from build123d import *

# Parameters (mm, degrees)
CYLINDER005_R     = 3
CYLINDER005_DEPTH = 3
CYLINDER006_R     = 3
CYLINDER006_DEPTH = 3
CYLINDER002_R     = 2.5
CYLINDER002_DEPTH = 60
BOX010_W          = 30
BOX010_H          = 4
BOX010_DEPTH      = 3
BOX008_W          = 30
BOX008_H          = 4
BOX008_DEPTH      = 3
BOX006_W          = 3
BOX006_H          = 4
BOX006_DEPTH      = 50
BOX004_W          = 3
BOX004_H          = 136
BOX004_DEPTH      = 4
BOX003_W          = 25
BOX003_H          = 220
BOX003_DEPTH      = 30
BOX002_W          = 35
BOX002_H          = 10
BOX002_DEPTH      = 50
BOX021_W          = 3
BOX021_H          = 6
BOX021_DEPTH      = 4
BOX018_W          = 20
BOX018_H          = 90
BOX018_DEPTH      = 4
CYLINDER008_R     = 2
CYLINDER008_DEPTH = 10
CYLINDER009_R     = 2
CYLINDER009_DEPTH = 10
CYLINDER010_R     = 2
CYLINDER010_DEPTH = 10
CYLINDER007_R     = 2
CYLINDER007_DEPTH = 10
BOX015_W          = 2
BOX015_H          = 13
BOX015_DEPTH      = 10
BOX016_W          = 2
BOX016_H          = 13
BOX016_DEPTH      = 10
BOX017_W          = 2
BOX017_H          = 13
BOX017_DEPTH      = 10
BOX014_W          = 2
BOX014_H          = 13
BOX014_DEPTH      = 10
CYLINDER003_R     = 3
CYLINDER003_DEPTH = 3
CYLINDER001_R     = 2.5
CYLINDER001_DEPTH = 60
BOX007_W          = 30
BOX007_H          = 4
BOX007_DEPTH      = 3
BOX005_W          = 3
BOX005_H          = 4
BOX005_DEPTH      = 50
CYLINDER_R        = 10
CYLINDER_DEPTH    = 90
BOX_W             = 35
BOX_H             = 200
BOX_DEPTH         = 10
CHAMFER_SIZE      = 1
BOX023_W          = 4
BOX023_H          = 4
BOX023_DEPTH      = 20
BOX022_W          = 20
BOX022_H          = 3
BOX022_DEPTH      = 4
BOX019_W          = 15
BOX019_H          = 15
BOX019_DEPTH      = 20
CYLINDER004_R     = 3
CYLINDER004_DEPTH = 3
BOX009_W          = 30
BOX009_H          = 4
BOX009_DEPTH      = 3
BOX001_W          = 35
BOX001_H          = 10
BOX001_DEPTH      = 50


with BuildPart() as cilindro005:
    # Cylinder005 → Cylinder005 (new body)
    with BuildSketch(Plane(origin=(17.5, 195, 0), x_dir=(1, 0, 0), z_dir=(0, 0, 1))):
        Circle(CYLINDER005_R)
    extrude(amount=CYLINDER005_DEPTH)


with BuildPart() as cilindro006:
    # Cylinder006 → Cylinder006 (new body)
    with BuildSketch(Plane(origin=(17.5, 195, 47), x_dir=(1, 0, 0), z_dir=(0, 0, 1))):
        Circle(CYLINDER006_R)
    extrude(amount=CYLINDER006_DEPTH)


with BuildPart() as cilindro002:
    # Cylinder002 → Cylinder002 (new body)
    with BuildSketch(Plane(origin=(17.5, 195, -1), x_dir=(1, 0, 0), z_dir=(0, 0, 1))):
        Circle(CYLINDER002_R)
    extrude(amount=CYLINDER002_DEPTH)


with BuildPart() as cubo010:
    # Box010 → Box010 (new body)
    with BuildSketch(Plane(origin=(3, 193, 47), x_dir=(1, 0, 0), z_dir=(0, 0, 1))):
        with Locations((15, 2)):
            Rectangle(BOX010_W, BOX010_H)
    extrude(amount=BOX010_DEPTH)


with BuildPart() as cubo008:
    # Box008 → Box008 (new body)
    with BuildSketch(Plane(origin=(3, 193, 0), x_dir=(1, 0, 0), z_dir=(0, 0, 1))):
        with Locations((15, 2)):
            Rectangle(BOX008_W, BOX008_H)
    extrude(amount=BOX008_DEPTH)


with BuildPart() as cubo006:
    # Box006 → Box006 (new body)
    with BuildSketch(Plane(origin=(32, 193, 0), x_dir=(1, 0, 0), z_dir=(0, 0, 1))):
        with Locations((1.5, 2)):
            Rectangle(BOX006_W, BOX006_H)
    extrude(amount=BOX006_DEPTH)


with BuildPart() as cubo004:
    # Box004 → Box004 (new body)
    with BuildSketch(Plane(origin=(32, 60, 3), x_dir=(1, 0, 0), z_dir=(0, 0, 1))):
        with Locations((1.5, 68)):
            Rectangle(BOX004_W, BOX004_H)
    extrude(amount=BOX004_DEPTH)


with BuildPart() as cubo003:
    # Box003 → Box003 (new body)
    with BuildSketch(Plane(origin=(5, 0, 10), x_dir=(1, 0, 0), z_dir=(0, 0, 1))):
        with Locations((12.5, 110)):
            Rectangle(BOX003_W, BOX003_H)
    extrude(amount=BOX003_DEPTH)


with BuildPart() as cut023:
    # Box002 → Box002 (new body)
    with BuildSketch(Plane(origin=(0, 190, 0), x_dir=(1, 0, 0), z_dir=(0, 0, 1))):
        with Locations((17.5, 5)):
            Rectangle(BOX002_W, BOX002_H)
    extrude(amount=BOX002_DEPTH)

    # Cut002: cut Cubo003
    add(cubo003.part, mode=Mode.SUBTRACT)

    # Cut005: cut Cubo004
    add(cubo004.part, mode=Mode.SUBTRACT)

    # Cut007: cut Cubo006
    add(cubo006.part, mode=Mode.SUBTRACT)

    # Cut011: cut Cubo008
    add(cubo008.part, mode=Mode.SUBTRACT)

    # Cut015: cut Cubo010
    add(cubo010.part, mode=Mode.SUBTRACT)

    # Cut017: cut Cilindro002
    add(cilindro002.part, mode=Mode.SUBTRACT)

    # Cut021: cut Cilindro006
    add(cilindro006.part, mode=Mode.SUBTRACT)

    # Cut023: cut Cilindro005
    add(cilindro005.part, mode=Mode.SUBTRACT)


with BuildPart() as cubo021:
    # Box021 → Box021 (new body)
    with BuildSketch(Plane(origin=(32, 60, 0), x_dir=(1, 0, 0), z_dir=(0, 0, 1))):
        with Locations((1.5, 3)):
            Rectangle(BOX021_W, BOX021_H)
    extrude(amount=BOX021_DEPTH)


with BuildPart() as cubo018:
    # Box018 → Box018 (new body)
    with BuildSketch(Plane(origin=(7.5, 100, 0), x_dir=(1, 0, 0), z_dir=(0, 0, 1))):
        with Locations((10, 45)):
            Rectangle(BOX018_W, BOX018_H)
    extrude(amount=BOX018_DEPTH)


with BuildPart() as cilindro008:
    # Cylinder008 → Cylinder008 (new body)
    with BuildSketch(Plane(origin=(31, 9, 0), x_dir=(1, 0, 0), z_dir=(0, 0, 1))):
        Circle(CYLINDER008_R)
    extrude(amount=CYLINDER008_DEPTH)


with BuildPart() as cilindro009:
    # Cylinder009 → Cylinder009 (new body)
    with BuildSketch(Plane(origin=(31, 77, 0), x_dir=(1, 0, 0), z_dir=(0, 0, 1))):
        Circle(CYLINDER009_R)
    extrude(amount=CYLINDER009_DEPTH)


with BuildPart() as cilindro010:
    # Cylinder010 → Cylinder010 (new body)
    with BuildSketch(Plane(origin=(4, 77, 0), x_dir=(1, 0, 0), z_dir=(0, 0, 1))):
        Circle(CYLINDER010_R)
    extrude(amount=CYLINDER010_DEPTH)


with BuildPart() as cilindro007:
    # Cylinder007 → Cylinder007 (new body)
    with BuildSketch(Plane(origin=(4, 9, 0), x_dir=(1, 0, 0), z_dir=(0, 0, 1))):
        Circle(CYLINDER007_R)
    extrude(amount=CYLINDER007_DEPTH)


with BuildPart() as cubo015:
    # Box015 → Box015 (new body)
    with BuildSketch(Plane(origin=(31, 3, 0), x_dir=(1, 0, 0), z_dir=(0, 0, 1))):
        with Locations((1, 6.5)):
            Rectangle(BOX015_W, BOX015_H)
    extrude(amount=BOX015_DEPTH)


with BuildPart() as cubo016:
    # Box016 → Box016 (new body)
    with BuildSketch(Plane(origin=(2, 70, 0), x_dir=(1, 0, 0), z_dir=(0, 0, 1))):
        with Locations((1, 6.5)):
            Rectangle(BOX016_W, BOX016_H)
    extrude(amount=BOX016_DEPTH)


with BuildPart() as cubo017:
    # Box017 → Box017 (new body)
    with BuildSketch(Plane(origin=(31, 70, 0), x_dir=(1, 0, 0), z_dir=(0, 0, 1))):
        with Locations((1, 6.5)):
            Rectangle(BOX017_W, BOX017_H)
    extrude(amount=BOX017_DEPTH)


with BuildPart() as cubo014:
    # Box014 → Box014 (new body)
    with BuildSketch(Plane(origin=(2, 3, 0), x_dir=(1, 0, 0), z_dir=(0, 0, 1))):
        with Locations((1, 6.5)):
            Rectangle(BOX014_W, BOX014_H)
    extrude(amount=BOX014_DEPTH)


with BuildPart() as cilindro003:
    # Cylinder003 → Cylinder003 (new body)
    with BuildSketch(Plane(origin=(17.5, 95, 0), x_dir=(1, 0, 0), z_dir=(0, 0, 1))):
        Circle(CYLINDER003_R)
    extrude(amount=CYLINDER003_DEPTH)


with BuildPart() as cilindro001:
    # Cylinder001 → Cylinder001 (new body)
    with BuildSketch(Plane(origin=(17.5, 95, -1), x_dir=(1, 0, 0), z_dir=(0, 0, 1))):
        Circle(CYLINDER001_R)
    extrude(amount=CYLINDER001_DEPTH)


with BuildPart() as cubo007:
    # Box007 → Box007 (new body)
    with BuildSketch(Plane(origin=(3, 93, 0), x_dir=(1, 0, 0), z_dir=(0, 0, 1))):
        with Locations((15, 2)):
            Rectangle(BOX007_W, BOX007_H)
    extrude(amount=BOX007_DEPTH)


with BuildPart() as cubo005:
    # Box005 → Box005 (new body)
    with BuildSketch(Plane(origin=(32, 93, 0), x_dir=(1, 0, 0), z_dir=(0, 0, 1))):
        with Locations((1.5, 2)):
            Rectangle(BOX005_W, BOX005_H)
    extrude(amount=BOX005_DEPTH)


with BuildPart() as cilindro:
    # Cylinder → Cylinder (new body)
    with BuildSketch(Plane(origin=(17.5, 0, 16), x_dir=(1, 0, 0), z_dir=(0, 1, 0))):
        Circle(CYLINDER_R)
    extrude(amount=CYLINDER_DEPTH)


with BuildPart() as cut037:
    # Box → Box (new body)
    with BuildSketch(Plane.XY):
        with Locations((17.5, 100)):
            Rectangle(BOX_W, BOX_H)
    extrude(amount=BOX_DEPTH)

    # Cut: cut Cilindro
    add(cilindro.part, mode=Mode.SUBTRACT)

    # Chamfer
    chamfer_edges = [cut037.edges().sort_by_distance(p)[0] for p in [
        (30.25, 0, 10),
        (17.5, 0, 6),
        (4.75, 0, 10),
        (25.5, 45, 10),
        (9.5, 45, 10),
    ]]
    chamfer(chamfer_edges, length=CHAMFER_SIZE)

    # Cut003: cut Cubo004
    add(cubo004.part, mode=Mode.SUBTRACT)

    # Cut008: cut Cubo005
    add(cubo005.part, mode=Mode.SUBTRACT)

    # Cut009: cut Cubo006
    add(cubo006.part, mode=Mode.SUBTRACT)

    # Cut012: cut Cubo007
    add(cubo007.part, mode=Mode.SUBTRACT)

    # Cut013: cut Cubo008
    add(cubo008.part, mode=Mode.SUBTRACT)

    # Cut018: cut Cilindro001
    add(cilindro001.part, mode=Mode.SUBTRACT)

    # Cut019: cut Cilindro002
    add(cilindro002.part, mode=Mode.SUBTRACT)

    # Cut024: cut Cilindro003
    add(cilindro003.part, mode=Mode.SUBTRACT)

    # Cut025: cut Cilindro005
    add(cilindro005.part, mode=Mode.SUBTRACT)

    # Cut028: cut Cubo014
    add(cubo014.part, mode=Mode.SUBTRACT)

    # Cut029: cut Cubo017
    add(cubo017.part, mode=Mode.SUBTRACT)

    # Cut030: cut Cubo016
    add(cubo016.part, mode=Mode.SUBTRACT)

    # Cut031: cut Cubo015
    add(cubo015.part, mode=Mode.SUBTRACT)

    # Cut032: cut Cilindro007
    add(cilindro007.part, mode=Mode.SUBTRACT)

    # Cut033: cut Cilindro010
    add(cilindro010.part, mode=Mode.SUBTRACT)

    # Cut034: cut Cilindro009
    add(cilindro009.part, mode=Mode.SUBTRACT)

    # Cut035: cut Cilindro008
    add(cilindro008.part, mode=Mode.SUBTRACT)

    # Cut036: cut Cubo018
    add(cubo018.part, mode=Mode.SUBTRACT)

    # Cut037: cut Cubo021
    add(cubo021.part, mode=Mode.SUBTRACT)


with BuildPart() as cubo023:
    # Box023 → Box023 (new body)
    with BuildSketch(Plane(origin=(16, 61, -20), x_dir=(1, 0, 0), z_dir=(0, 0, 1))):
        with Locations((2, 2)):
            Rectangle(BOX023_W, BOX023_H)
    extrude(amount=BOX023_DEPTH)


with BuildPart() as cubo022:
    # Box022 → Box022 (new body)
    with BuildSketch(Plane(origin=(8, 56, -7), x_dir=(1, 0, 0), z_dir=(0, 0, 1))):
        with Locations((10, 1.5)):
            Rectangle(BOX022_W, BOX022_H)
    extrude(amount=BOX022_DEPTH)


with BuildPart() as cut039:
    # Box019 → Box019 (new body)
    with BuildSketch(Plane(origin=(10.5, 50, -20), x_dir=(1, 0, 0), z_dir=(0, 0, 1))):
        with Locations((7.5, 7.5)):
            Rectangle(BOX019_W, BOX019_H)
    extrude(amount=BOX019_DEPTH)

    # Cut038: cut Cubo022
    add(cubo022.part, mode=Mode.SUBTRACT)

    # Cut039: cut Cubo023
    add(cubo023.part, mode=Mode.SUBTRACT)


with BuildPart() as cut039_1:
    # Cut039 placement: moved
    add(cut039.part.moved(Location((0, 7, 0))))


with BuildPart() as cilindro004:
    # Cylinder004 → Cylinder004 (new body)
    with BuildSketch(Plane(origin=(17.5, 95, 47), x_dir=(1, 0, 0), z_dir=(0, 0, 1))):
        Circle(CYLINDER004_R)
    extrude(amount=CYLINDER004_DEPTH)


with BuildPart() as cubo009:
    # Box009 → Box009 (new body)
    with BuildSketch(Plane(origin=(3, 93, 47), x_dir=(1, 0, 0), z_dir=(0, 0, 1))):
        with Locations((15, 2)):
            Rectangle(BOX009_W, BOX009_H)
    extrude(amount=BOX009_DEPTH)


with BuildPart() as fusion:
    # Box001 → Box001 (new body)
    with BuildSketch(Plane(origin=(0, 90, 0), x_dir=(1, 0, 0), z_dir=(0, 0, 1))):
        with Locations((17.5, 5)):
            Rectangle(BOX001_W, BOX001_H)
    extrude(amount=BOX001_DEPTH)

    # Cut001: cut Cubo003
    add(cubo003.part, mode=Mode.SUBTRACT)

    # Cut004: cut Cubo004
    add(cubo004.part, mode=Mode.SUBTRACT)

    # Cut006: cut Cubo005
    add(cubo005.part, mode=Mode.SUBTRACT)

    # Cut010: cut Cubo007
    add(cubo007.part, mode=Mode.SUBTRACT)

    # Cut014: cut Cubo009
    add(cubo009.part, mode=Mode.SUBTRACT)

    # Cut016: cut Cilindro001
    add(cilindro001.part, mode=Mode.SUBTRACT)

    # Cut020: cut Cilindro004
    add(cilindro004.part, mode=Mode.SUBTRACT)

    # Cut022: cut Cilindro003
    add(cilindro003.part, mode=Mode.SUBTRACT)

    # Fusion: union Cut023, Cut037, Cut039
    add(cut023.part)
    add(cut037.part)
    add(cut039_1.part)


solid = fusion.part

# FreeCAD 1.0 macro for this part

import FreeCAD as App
import Part
import Sketcher


def edges_at(feature, points):
    """Names of the edges that pass closest to the given points."""
    edges = feature.Shape.Edges
    near = lambda p: min(range(len(edges)), key=lambda i: edges[i].distToShape(Part.Vertex(*p))[0])
    return sorted({f"Edge{near(p) + 1}" for p in points})

doc = App.newDocument("Part")
body = doc.addObject("PartDesign::Body", "Body")

sketch1 = body.newObject("Sketcher::SketchObject", "Sketch")
sketch1.AttachmentSupport = (doc.getObject("XY_Plane"), [""])
sketch1.MapMode = "FlatFace"
sketch1.addGeometry(Part.Circle(App.Vector(17.5, 195, 0), App.Vector(0, 0, 1), 3), False)
sketch1.addConstraint(Sketcher.Constraint("Diameter", 0, 6.0))
sketch1.addConstraint(Sketcher.Constraint("DistanceY", -1, 1, 0, 3, 195.0))
sketch1.addConstraint(Sketcher.Constraint("DistanceX", -1, 1, 0, 3, 17.5))
pad1 = body.newObject("PartDesign::Pad", "Pad")
pad1.Profile = sketch1
pad1.Length = 3
body2 = doc.addObject("PartDesign::Body", "Body001")

sketch2 = body2.newObject("Sketcher::SketchObject", "Sketch001")
sketch2.AttachmentSupport = (doc.getObject("XY_Plane001"), [""])
sketch2.MapMode = "FlatFace"
sketch2.AttachmentOffset = App.Placement(App.Vector(0, 0, 47), App.Rotation())
sketch2.addGeometry(Part.Circle(App.Vector(17.5, 195, 0), App.Vector(0, 0, 1), 3), False)
sketch2.addConstraint(Sketcher.Constraint("Diameter", 0, 6.0))
sketch2.addConstraint(Sketcher.Constraint("DistanceY", -1, 1, 0, 3, 195.0))
sketch2.addConstraint(Sketcher.Constraint("DistanceX", -1, 1, 0, 3, 17.5))
pad2 = body2.newObject("PartDesign::Pad", "Pad001")
pad2.Profile = sketch2
pad2.Length = 3
body3 = doc.addObject("PartDesign::Body", "Body002")

sketch3 = body3.newObject("Sketcher::SketchObject", "Sketch002")
sketch3.AttachmentSupport = (doc.getObject("XY_Plane002"), [""])
sketch3.MapMode = "FlatFace"
sketch3.AttachmentOffset = App.Placement(App.Vector(0, 0, -1), App.Rotation())
sketch3.addGeometry(Part.Circle(App.Vector(17.5, 195, 0), App.Vector(0, 0, 1), 2.5), False)
sketch3.addConstraint(Sketcher.Constraint("Diameter", 0, 5.0))
sketch3.addConstraint(Sketcher.Constraint("DistanceY", -1, 1, 0, 3, 195.0))
sketch3.addConstraint(Sketcher.Constraint("DistanceX", -1, 1, 0, 3, 17.5))
pad3 = body3.newObject("PartDesign::Pad", "Pad002")
pad3.Profile = sketch3
pad3.Length = 60
body4 = doc.addObject("PartDesign::Body", "Body003")

sketch4 = body4.newObject("Sketcher::SketchObject", "Sketch003")
sketch4.AttachmentSupport = (doc.getObject("XY_Plane003"), [""])
sketch4.MapMode = "FlatFace"
sketch4.AttachmentOffset = App.Placement(App.Vector(0, 0, 47), App.Rotation())
sketch4.addGeometry(Part.LineSegment(App.Vector(3, 197, 0), App.Vector(3, 193, 0)), False)
sketch4.addGeometry(Part.LineSegment(App.Vector(3, 193, 0), App.Vector(33, 193, 0)), False)
sketch4.addGeometry(Part.LineSegment(App.Vector(33, 193, 0), App.Vector(33, 197, 0)), False)
sketch4.addGeometry(Part.LineSegment(App.Vector(33, 197, 0), App.Vector(3, 197, 0)), False)
sketch4.addConstraint(Sketcher.Constraint("Coincident", 0, 2, 1, 1))
sketch4.addConstraint(Sketcher.Constraint("Coincident", 1, 2, 2, 1))
sketch4.addConstraint(Sketcher.Constraint("Coincident", 2, 2, 3, 1))
sketch4.addConstraint(Sketcher.Constraint("Coincident", 3, 2, 0, 1))
sketch4.addConstraint(Sketcher.Constraint("Vertical", 0))
sketch4.addConstraint(Sketcher.Constraint("Horizontal", 1))
sketch4.addConstraint(Sketcher.Constraint("Vertical", 2))
sketch4.addConstraint(Sketcher.Constraint("Horizontal", 3))
sketch4.addConstraint(Sketcher.Constraint("DistanceX", 1, 1, 1, 2, 30.0))
sketch4.addConstraint(Sketcher.Constraint("DistanceY", 0, 2, 0, 1, 4.0))
sketch4.addConstraint(Sketcher.Constraint("DistanceX", -1, 1, 0, 2, 3.0))
sketch4.addConstraint(Sketcher.Constraint("DistanceY", -1, 1, 0, 2, 193.0))
pad4 = body4.newObject("PartDesign::Pad", "Pad003")
pad4.Profile = sketch4
pad4.Length = 3
body5 = doc.addObject("PartDesign::Body", "Body004")

sketch5 = body5.newObject("Sketcher::SketchObject", "Sketch004")
sketch5.AttachmentSupport = (doc.getObject("XY_Plane004"), [""])
sketch5.MapMode = "FlatFace"
sketch5.addGeometry(Part.LineSegment(App.Vector(3, 197, 0), App.Vector(3, 193, 0)), False)
sketch5.addGeometry(Part.LineSegment(App.Vector(3, 193, 0), App.Vector(33, 193, 0)), False)
sketch5.addGeometry(Part.LineSegment(App.Vector(33, 193, 0), App.Vector(33, 197, 0)), False)
sketch5.addGeometry(Part.LineSegment(App.Vector(33, 197, 0), App.Vector(3, 197, 0)), False)
sketch5.addConstraint(Sketcher.Constraint("Coincident", 0, 2, 1, 1))
sketch5.addConstraint(Sketcher.Constraint("Coincident", 1, 2, 2, 1))
sketch5.addConstraint(Sketcher.Constraint("Coincident", 2, 2, 3, 1))
sketch5.addConstraint(Sketcher.Constraint("Coincident", 3, 2, 0, 1))
sketch5.addConstraint(Sketcher.Constraint("Vertical", 0))
sketch5.addConstraint(Sketcher.Constraint("Horizontal", 1))
sketch5.addConstraint(Sketcher.Constraint("Vertical", 2))
sketch5.addConstraint(Sketcher.Constraint("Horizontal", 3))
sketch5.addConstraint(Sketcher.Constraint("DistanceX", 1, 1, 1, 2, 30.0))
sketch5.addConstraint(Sketcher.Constraint("DistanceY", 0, 2, 0, 1, 4.0))
sketch5.addConstraint(Sketcher.Constraint("DistanceX", -1, 1, 0, 2, 3.0))
sketch5.addConstraint(Sketcher.Constraint("DistanceY", -1, 1, 0, 2, 193.0))
pad5 = body5.newObject("PartDesign::Pad", "Pad004")
pad5.Profile = sketch5
pad5.Length = 3
body6 = doc.addObject("PartDesign::Body", "Body005")

sketch6 = body6.newObject("Sketcher::SketchObject", "Sketch005")
sketch6.AttachmentSupport = (doc.getObject("XY_Plane005"), [""])
sketch6.MapMode = "FlatFace"
sketch6.addGeometry(Part.LineSegment(App.Vector(32, 197, 0), App.Vector(32, 193, 0)), False)
sketch6.addGeometry(Part.LineSegment(App.Vector(32, 193, 0), App.Vector(35, 193, 0)), False)
sketch6.addGeometry(Part.LineSegment(App.Vector(35, 193, 0), App.Vector(35, 197, 0)), False)
sketch6.addGeometry(Part.LineSegment(App.Vector(35, 197, 0), App.Vector(32, 197, 0)), False)
sketch6.addConstraint(Sketcher.Constraint("Coincident", 0, 2, 1, 1))
sketch6.addConstraint(Sketcher.Constraint("Coincident", 1, 2, 2, 1))
sketch6.addConstraint(Sketcher.Constraint("Coincident", 2, 2, 3, 1))
sketch6.addConstraint(Sketcher.Constraint("Coincident", 3, 2, 0, 1))
sketch6.addConstraint(Sketcher.Constraint("Vertical", 0))
sketch6.addConstraint(Sketcher.Constraint("Horizontal", 1))
sketch6.addConstraint(Sketcher.Constraint("Vertical", 2))
sketch6.addConstraint(Sketcher.Constraint("Horizontal", 3))
sketch6.addConstraint(Sketcher.Constraint("DistanceX", 1, 1, 1, 2, 3.0))
sketch6.addConstraint(Sketcher.Constraint("DistanceY", 0, 2, 0, 1, 4.0))
sketch6.addConstraint(Sketcher.Constraint("DistanceX", -1, 1, 0, 2, 32.0))
sketch6.addConstraint(Sketcher.Constraint("DistanceY", -1, 1, 0, 2, 193.0))
pad6 = body6.newObject("PartDesign::Pad", "Pad005")
pad6.Profile = sketch6
pad6.Length = 50
body7 = doc.addObject("PartDesign::Body", "Body006")

sketch7 = body7.newObject("Sketcher::SketchObject", "Sketch006")
sketch7.AttachmentSupport = (doc.getObject("XY_Plane006"), [""])
sketch7.MapMode = "FlatFace"
sketch7.AttachmentOffset = App.Placement(App.Vector(0, 0, 3), App.Rotation())
sketch7.addGeometry(Part.LineSegment(App.Vector(32, 196, 0), App.Vector(32, 60, 0)), False)
sketch7.addGeometry(Part.LineSegment(App.Vector(32, 60, 0), App.Vector(35, 60, 0)), False)
sketch7.addGeometry(Part.LineSegment(App.Vector(35, 60, 0), App.Vector(35, 196, 0)), False)
sketch7.addGeometry(Part.LineSegment(App.Vector(35, 196, 0), App.Vector(32, 196, 0)), False)
sketch7.addConstraint(Sketcher.Constraint("Coincident", 0, 2, 1, 1))
sketch7.addConstraint(Sketcher.Constraint("Coincident", 1, 2, 2, 1))
sketch7.addConstraint(Sketcher.Constraint("Coincident", 2, 2, 3, 1))
sketch7.addConstraint(Sketcher.Constraint("Coincident", 3, 2, 0, 1))
sketch7.addConstraint(Sketcher.Constraint("Vertical", 0))
sketch7.addConstraint(Sketcher.Constraint("Horizontal", 1))
sketch7.addConstraint(Sketcher.Constraint("Vertical", 2))
sketch7.addConstraint(Sketcher.Constraint("Horizontal", 3))
sketch7.addConstraint(Sketcher.Constraint("DistanceX", 1, 1, 1, 2, 3.0))
sketch7.addConstraint(Sketcher.Constraint("DistanceY", 0, 2, 0, 1, 136.0))
sketch7.addConstraint(Sketcher.Constraint("DistanceX", -1, 1, 0, 2, 32.0))
sketch7.addConstraint(Sketcher.Constraint("DistanceY", -1, 1, 0, 2, 60.0))
pad7 = body7.newObject("PartDesign::Pad", "Pad006")
pad7.Profile = sketch7
pad7.Length = 4
body8 = doc.addObject("PartDesign::Body", "Body007")

sketch8 = body8.newObject("Sketcher::SketchObject", "Sketch007")
sketch8.AttachmentSupport = (doc.getObject("XY_Plane007"), [""])
sketch8.MapMode = "FlatFace"
sketch8.AttachmentOffset = App.Placement(App.Vector(0, 0, 10), App.Rotation())
sketch8.addGeometry(Part.LineSegment(App.Vector(5, 220, 0), App.Vector(5, 0, 0)), False)
sketch8.addGeometry(Part.LineSegment(App.Vector(5, 0, 0), App.Vector(30, 0, 0)), False)
sketch8.addGeometry(Part.LineSegment(App.Vector(30, 0, 0), App.Vector(30, 220, 0)), False)
sketch8.addGeometry(Part.LineSegment(App.Vector(30, 220, 0), App.Vector(5, 220, 0)), False)
sketch8.addConstraint(Sketcher.Constraint("Coincident", 0, 2, 1, 1))
sketch8.addConstraint(Sketcher.Constraint("Coincident", 1, 2, 2, 1))
sketch8.addConstraint(Sketcher.Constraint("Coincident", 2, 2, 3, 1))
sketch8.addConstraint(Sketcher.Constraint("Coincident", 3, 2, 0, 1))
sketch8.addConstraint(Sketcher.Constraint("Vertical", 0))
sketch8.addConstraint(Sketcher.Constraint("Horizontal", 1))
sketch8.addConstraint(Sketcher.Constraint("Vertical", 2))
sketch8.addConstraint(Sketcher.Constraint("Horizontal", 3))
sketch8.addConstraint(Sketcher.Constraint("PointOnObject", 0, 2, -1))
sketch8.addConstraint(Sketcher.Constraint("DistanceX", 1, 1, 1, 2, 25.0))
sketch8.addConstraint(Sketcher.Constraint("DistanceY", 0, 2, 0, 1, 220.0))
sketch8.addConstraint(Sketcher.Constraint("DistanceX", -1, 1, 0, 2, 5.0))
pad8 = body8.newObject("PartDesign::Pad", "Pad007")
pad8.Profile = sketch8
pad8.Length = 30
body9 = doc.addObject("PartDesign::Body", "Body008")

sketch9 = body9.newObject("Sketcher::SketchObject", "Sketch008")
sketch9.AttachmentSupport = (doc.getObject("XY_Plane008"), [""])
sketch9.MapMode = "FlatFace"
sketch9.addGeometry(Part.LineSegment(App.Vector(0, 200, 0), App.Vector(0, 190, 0)), False)
sketch9.addGeometry(Part.LineSegment(App.Vector(0, 190, 0), App.Vector(35, 190, 0)), False)
sketch9.addGeometry(Part.LineSegment(App.Vector(35, 190, 0), App.Vector(35, 200, 0)), False)
sketch9.addGeometry(Part.LineSegment(App.Vector(35, 200, 0), App.Vector(0, 200, 0)), False)
sketch9.addConstraint(Sketcher.Constraint("Coincident", 0, 2, 1, 1))
sketch9.addConstraint(Sketcher.Constraint("Coincident", 1, 2, 2, 1))
sketch9.addConstraint(Sketcher.Constraint("Coincident", 2, 2, 3, 1))
sketch9.addConstraint(Sketcher.Constraint("Coincident", 3, 2, 0, 1))
sketch9.addConstraint(Sketcher.Constraint("Vertical", 0))
sketch9.addConstraint(Sketcher.Constraint("Horizontal", 1))
sketch9.addConstraint(Sketcher.Constraint("Vertical", 2))
sketch9.addConstraint(Sketcher.Constraint("Horizontal", 3))
sketch9.addConstraint(Sketcher.Constraint("PointOnObject", 0, 2, -2))
sketch9.addConstraint(Sketcher.Constraint("DistanceX", 1, 1, 1, 2, 35.0))
sketch9.addConstraint(Sketcher.Constraint("DistanceY", 0, 2, 0, 1, 10.0))
sketch9.addConstraint(Sketcher.Constraint("DistanceY", -1, 1, 0, 2, 190.0))
pad9 = body9.newObject("PartDesign::Pad", "Pad008")
pad9.Profile = sketch9
pad9.Length = 50
doc.recompute()

body10 = doc.addObject("PartDesign::Body", "Body009")
body10.BaseFeature = body8
boolean = body9.newObject("PartDesign::Boolean", "Boolean")
boolean.Type = "Cut"
boolean.addObjects([body10])
doc.recompute()

body11 = doc.addObject("PartDesign::Body", "Body010")
body11.BaseFeature = body7
boolean2 = body9.newObject("PartDesign::Boolean", "Boolean001")
boolean2.Type = "Cut"
boolean2.addObjects([body11])
doc.recompute()

body12 = doc.addObject("PartDesign::Body", "Body011")
body12.BaseFeature = body6
boolean3 = body9.newObject("PartDesign::Boolean", "Boolean002")
boolean3.Type = "Cut"
boolean3.addObjects([body12])
doc.recompute()

body13 = doc.addObject("PartDesign::Body", "Body012")
body13.BaseFeature = body5
boolean4 = body9.newObject("PartDesign::Boolean", "Boolean003")
boolean4.Type = "Cut"
boolean4.addObjects([body13])
doc.recompute()

boolean5 = body9.newObject("PartDesign::Boolean", "Boolean004")
boolean5.Type = "Cut"
boolean5.addObjects([body4])
doc.recompute()

body14 = doc.addObject("PartDesign::Body", "Body013")
body14.BaseFeature = body3
boolean6 = body9.newObject("PartDesign::Boolean", "Boolean005")
boolean6.Type = "Cut"
boolean6.addObjects([body14])
doc.recompute()

boolean7 = body9.newObject("PartDesign::Boolean", "Boolean006")
boolean7.Type = "Cut"
boolean7.addObjects([body2])
doc.recompute()

body15 = doc.addObject("PartDesign::Body", "Body014")
body15.BaseFeature = body
boolean8 = body9.newObject("PartDesign::Boolean", "Boolean007")
boolean8.Type = "Cut"
boolean8.addObjects([body15])
doc.recompute()
body16 = doc.addObject("PartDesign::Body", "Body015")

sketch10 = body16.newObject("Sketcher::SketchObject", "Sketch009")
sketch10.AttachmentSupport = (doc.getObject("XY_Plane015"), [""])
sketch10.MapMode = "FlatFace"
sketch10.addGeometry(Part.LineSegment(App.Vector(32, 66, 0), App.Vector(32, 60, 0)), False)
sketch10.addGeometry(Part.LineSegment(App.Vector(32, 60, 0), App.Vector(35, 60, 0)), False)
sketch10.addGeometry(Part.LineSegment(App.Vector(35, 60, 0), App.Vector(35, 66, 0)), False)
sketch10.addGeometry(Part.LineSegment(App.Vector(35, 66, 0), App.Vector(32, 66, 0)), False)
sketch10.addConstraint(Sketcher.Constraint("Coincident", 0, 2, 1, 1))
sketch10.addConstraint(Sketcher.Constraint("Coincident", 1, 2, 2, 1))
sketch10.addConstraint(Sketcher.Constraint("Coincident", 2, 2, 3, 1))
sketch10.addConstraint(Sketcher.Constraint("Coincident", 3, 2, 0, 1))
sketch10.addConstraint(Sketcher.Constraint("Vertical", 0))
sketch10.addConstraint(Sketcher.Constraint("Horizontal", 1))
sketch10.addConstraint(Sketcher.Constraint("Vertical", 2))
sketch10.addConstraint(Sketcher.Constraint("Horizontal", 3))
sketch10.addConstraint(Sketcher.Constraint("DistanceX", 1, 1, 1, 2, 3.0))
sketch10.addConstraint(Sketcher.Constraint("DistanceY", 0, 2, 0, 1, 6.0))
sketch10.addConstraint(Sketcher.Constraint("DistanceX", -1, 1, 0, 2, 32.0))
sketch10.addConstraint(Sketcher.Constraint("DistanceY", -1, 1, 0, 2, 60.0))
pad10 = body16.newObject("PartDesign::Pad", "Pad009")
pad10.Profile = sketch10
pad10.Length = 4
body17 = doc.addObject("PartDesign::Body", "Body016")

sketch11 = body17.newObject("Sketcher::SketchObject", "Sketch010")
sketch11.AttachmentSupport = (doc.getObject("XY_Plane016"), [""])
sketch11.MapMode = "FlatFace"
sketch11.addGeometry(Part.LineSegment(App.Vector(7.5, 190, 0), App.Vector(7.5, 100, 0)), False)
sketch11.addGeometry(Part.LineSegment(App.Vector(7.5, 100, 0), App.Vector(27.5, 100, 0)), False)
sketch11.addGeometry(Part.LineSegment(App.Vector(27.5, 100, 0), App.Vector(27.5, 190, 0)), False)
sketch11.addGeometry(Part.LineSegment(App.Vector(27.5, 190, 0), App.Vector(7.5, 190, 0)), False)
sketch11.addConstraint(Sketcher.Constraint("Coincident", 0, 2, 1, 1))
sketch11.addConstraint(Sketcher.Constraint("Coincident", 1, 2, 2, 1))
sketch11.addConstraint(Sketcher.Constraint("Coincident", 2, 2, 3, 1))
sketch11.addConstraint(Sketcher.Constraint("Coincident", 3, 2, 0, 1))
sketch11.addConstraint(Sketcher.Constraint("Vertical", 0))
sketch11.addConstraint(Sketcher.Constraint("Horizontal", 1))
sketch11.addConstraint(Sketcher.Constraint("Vertical", 2))
sketch11.addConstraint(Sketcher.Constraint("Horizontal", 3))
sketch11.addConstraint(Sketcher.Constraint("DistanceX", 1, 1, 1, 2, 20.0))
sketch11.addConstraint(Sketcher.Constraint("DistanceY", 0, 2, 0, 1, 90.0))
sketch11.addConstraint(Sketcher.Constraint("DistanceY", -1, 1, 0, 2, 100.0))
sketch11.addConstraint(Sketcher.Constraint("DistanceX", -1, 1, 0, 2, 7.5))
pad11 = body17.newObject("PartDesign::Pad", "Pad010")
pad11.Profile = sketch11
pad11.Length = 4
body18 = doc.addObject("PartDesign::Body", "Body017")

sketch12 = body18.newObject("Sketcher::SketchObject", "Sketch011")
sketch12.AttachmentSupport = (doc.getObject("XY_Plane017"), [""])
sketch12.MapMode = "FlatFace"
sketch12.addGeometry(Part.Circle(App.Vector(31, 9, 0), App.Vector(0, 0, 1), 2), False)
sketch12.addConstraint(Sketcher.Constraint("Diameter", 0, 4.0))
sketch12.addConstraint(Sketcher.Constraint("DistanceX", -1, 1, 0, 3, 31.0))
sketch12.addConstraint(Sketcher.Constraint("DistanceY", -1, 1, 0, 3, 9.0))
pad12 = body18.newObject("PartDesign::Pad", "Pad011")
pad12.Profile = sketch12
pad12.Length = 10
body19 = doc.addObject("PartDesign::Body", "Body018")

sketch13 = body19.newObject("Sketcher::SketchObject", "Sketch012")
sketch13.AttachmentSupport = (doc.getObject("XY_Plane018"), [""])
sketch13.MapMode = "FlatFace"
sketch13.addGeometry(Part.Circle(App.Vector(31, 77, 0), App.Vector(0, 0, 1), 2), False)
sketch13.addConstraint(Sketcher.Constraint("Diameter", 0, 4.0))
sketch13.addConstraint(Sketcher.Constraint("DistanceX", -1, 1, 0, 3, 31.0))
sketch13.addConstraint(Sketcher.Constraint("DistanceY", -1, 1, 0, 3, 77.0))
pad13 = body19.newObject("PartDesign::Pad", "Pad012")
pad13.Profile = sketch13
pad13.Length = 10
body20 = doc.addObject("PartDesign::Body", "Body019")

sketch14 = body20.newObject("Sketcher::SketchObject", "Sketch013")
sketch14.AttachmentSupport = (doc.getObject("XY_Plane019"), [""])
sketch14.MapMode = "FlatFace"
sketch14.addGeometry(Part.Circle(App.Vector(4, 77, 0), App.Vector(0, 0, 1), 2), False)
sketch14.addConstraint(Sketcher.Constraint("Diameter", 0, 4.0))
sketch14.addConstraint(Sketcher.Constraint("DistanceX", -1, 1, 0, 3, 4.0))
sketch14.addConstraint(Sketcher.Constraint("DistanceY", -1, 1, 0, 3, 77.0))
pad14 = body20.newObject("PartDesign::Pad", "Pad013")
pad14.Profile = sketch14
pad14.Length = 10
body21 = doc.addObject("PartDesign::Body", "Body020")

sketch15 = body21.newObject("Sketcher::SketchObject", "Sketch014")
sketch15.AttachmentSupport = (doc.getObject("XY_Plane020"), [""])
sketch15.MapMode = "FlatFace"
sketch15.addGeometry(Part.Circle(App.Vector(4, 9, 0), App.Vector(0, 0, 1), 2), False)
sketch15.addConstraint(Sketcher.Constraint("Diameter", 0, 4.0))
sketch15.addConstraint(Sketcher.Constraint("DistanceX", -1, 1, 0, 3, 4.0))
sketch15.addConstraint(Sketcher.Constraint("DistanceY", -1, 1, 0, 3, 9.0))
pad15 = body21.newObject("PartDesign::Pad", "Pad014")
pad15.Profile = sketch15
pad15.Length = 10
body22 = doc.addObject("PartDesign::Body", "Body021")

sketch16 = body22.newObject("Sketcher::SketchObject", "Sketch015")
sketch16.AttachmentSupport = (doc.getObject("XY_Plane021"), [""])
sketch16.MapMode = "FlatFace"
sketch16.addGeometry(Part.LineSegment(App.Vector(31, 16, 0), App.Vector(31, 3, 0)), False)
sketch16.addGeometry(Part.LineSegment(App.Vector(31, 3, 0), App.Vector(33, 3, 0)), False)
sketch16.addGeometry(Part.LineSegment(App.Vector(33, 3, 0), App.Vector(33, 16, 0)), False)
sketch16.addGeometry(Part.LineSegment(App.Vector(33, 16, 0), App.Vector(31, 16, 0)), False)
sketch16.addConstraint(Sketcher.Constraint("Coincident", 0, 2, 1, 1))
sketch16.addConstraint(Sketcher.Constraint("Coincident", 1, 2, 2, 1))
sketch16.addConstraint(Sketcher.Constraint("Coincident", 2, 2, 3, 1))
sketch16.addConstraint(Sketcher.Constraint("Coincident", 3, 2, 0, 1))
sketch16.addConstraint(Sketcher.Constraint("Vertical", 0))
sketch16.addConstraint(Sketcher.Constraint("Horizontal", 1))
sketch16.addConstraint(Sketcher.Constraint("Vertical", 2))
sketch16.addConstraint(Sketcher.Constraint("Horizontal", 3))
sketch16.addConstraint(Sketcher.Constraint("DistanceX", 1, 1, 1, 2, 2.0))
sketch16.addConstraint(Sketcher.Constraint("DistanceY", 0, 2, 0, 1, 13.0))
sketch16.addConstraint(Sketcher.Constraint("DistanceX", -1, 1, 0, 2, 31.0))
sketch16.addConstraint(Sketcher.Constraint("DistanceY", -1, 1, 0, 2, 3.0))
pad16 = body22.newObject("PartDesign::Pad", "Pad015")
pad16.Profile = sketch16
pad16.Length = 10
body23 = doc.addObject("PartDesign::Body", "Body022")

sketch17 = body23.newObject("Sketcher::SketchObject", "Sketch016")
sketch17.AttachmentSupport = (doc.getObject("XY_Plane022"), [""])
sketch17.MapMode = "FlatFace"
sketch17.addGeometry(Part.LineSegment(App.Vector(2, 83, 0), App.Vector(2, 70, 0)), False)
sketch17.addGeometry(Part.LineSegment(App.Vector(2, 70, 0), App.Vector(4, 70, 0)), False)
sketch17.addGeometry(Part.LineSegment(App.Vector(4, 70, 0), App.Vector(4, 83, 0)), False)
sketch17.addGeometry(Part.LineSegment(App.Vector(4, 83, 0), App.Vector(2, 83, 0)), False)
sketch17.addConstraint(Sketcher.Constraint("Coincident", 0, 2, 1, 1))
sketch17.addConstraint(Sketcher.Constraint("Coincident", 1, 2, 2, 1))
sketch17.addConstraint(Sketcher.Constraint("Coincident", 2, 2, 3, 1))
sketch17.addConstraint(Sketcher.Constraint("Coincident", 3, 2, 0, 1))
sketch17.addConstraint(Sketcher.Constraint("Vertical", 0))
sketch17.addConstraint(Sketcher.Constraint("Horizontal", 1))
sketch17.addConstraint(Sketcher.Constraint("Vertical", 2))
sketch17.addConstraint(Sketcher.Constraint("Horizontal", 3))
sketch17.addConstraint(Sketcher.Constraint("DistanceX", 1, 1, 1, 2, 2.0))
sketch17.addConstraint(Sketcher.Constraint("DistanceY", 0, 2, 0, 1, 13.0))
sketch17.addConstraint(Sketcher.Constraint("DistanceX", -1, 1, 0, 2, 2.0))
sketch17.addConstraint(Sketcher.Constraint("DistanceY", -1, 1, 0, 2, 70.0))
pad17 = body23.newObject("PartDesign::Pad", "Pad016")
pad17.Profile = sketch17
pad17.Length = 10
body24 = doc.addObject("PartDesign::Body", "Body023")

sketch18 = body24.newObject("Sketcher::SketchObject", "Sketch017")
sketch18.AttachmentSupport = (doc.getObject("XY_Plane023"), [""])
sketch18.MapMode = "FlatFace"
sketch18.addGeometry(Part.LineSegment(App.Vector(31, 83, 0), App.Vector(31, 70, 0)), False)
sketch18.addGeometry(Part.LineSegment(App.Vector(31, 70, 0), App.Vector(33, 70, 0)), False)
sketch18.addGeometry(Part.LineSegment(App.Vector(33, 70, 0), App.Vector(33, 83, 0)), False)
sketch18.addGeometry(Part.LineSegment(App.Vector(33, 83, 0), App.Vector(31, 83, 0)), False)
sketch18.addConstraint(Sketcher.Constraint("Coincident", 0, 2, 1, 1))
sketch18.addConstraint(Sketcher.Constraint("Coincident", 1, 2, 2, 1))
sketch18.addConstraint(Sketcher.Constraint("Coincident", 2, 2, 3, 1))
sketch18.addConstraint(Sketcher.Constraint("Coincident", 3, 2, 0, 1))
sketch18.addConstraint(Sketcher.Constraint("Vertical", 0))
sketch18.addConstraint(Sketcher.Constraint("Horizontal", 1))
sketch18.addConstraint(Sketcher.Constraint("Vertical", 2))
sketch18.addConstraint(Sketcher.Constraint("Horizontal", 3))
sketch18.addConstraint(Sketcher.Constraint("DistanceX", 1, 1, 1, 2, 2.0))
sketch18.addConstraint(Sketcher.Constraint("DistanceY", 0, 2, 0, 1, 13.0))
sketch18.addConstraint(Sketcher.Constraint("DistanceX", -1, 1, 0, 2, 31.0))
sketch18.addConstraint(Sketcher.Constraint("DistanceY", -1, 1, 0, 2, 70.0))
pad18 = body24.newObject("PartDesign::Pad", "Pad017")
pad18.Profile = sketch18
pad18.Length = 10
body25 = doc.addObject("PartDesign::Body", "Body024")

sketch19 = body25.newObject("Sketcher::SketchObject", "Sketch018")
sketch19.AttachmentSupport = (doc.getObject("XY_Plane024"), [""])
sketch19.MapMode = "FlatFace"
sketch19.addGeometry(Part.LineSegment(App.Vector(2, 16, 0), App.Vector(2, 3, 0)), False)
sketch19.addGeometry(Part.LineSegment(App.Vector(2, 3, 0), App.Vector(4, 3, 0)), False)
sketch19.addGeometry(Part.LineSegment(App.Vector(4, 3, 0), App.Vector(4, 16, 0)), False)
sketch19.addGeometry(Part.LineSegment(App.Vector(4, 16, 0), App.Vector(2, 16, 0)), False)
sketch19.addConstraint(Sketcher.Constraint("Coincident", 0, 2, 1, 1))
sketch19.addConstraint(Sketcher.Constraint("Coincident", 1, 2, 2, 1))
sketch19.addConstraint(Sketcher.Constraint("Coincident", 2, 2, 3, 1))
sketch19.addConstraint(Sketcher.Constraint("Coincident", 3, 2, 0, 1))
sketch19.addConstraint(Sketcher.Constraint("Vertical", 0))
sketch19.addConstraint(Sketcher.Constraint("Horizontal", 1))
sketch19.addConstraint(Sketcher.Constraint("Vertical", 2))
sketch19.addConstraint(Sketcher.Constraint("Horizontal", 3))
sketch19.addConstraint(Sketcher.Constraint("DistanceX", 1, 1, 1, 2, 2.0))
sketch19.addConstraint(Sketcher.Constraint("DistanceY", 0, 2, 0, 1, 13.0))
sketch19.addConstraint(Sketcher.Constraint("DistanceX", -1, 1, 0, 2, 2.0))
sketch19.addConstraint(Sketcher.Constraint("DistanceY", -1, 1, 0, 2, 3.0))
pad19 = body25.newObject("PartDesign::Pad", "Pad018")
pad19.Profile = sketch19
pad19.Length = 10
body26 = doc.addObject("PartDesign::Body", "Body025")

sketch20 = body26.newObject("Sketcher::SketchObject", "Sketch019")
sketch20.AttachmentSupport = (doc.getObject("XY_Plane025"), [""])
sketch20.MapMode = "FlatFace"
sketch20.addGeometry(Part.Circle(App.Vector(17.5, 95, 0), App.Vector(0, 0, 1), 3), False)
sketch20.addConstraint(Sketcher.Constraint("Diameter", 0, 6.0))
sketch20.addConstraint(Sketcher.Constraint("DistanceY", -1, 1, 0, 3, 95.0))
sketch20.addConstraint(Sketcher.Constraint("DistanceX", -1, 1, 0, 3, 17.5))
pad20 = body26.newObject("PartDesign::Pad", "Pad019")
pad20.Profile = sketch20
pad20.Length = 3
body27 = doc.addObject("PartDesign::Body", "Body026")

sketch21 = body27.newObject("Sketcher::SketchObject", "Sketch020")
sketch21.AttachmentSupport = (doc.getObject("XY_Plane026"), [""])
sketch21.MapMode = "FlatFace"
sketch21.AttachmentOffset = App.Placement(App.Vector(0, 0, -1), App.Rotation())
sketch21.addGeometry(Part.Circle(App.Vector(17.5, 95, 0), App.Vector(0, 0, 1), 2.5), False)
sketch21.addConstraint(Sketcher.Constraint("Diameter", 0, 5.0))
sketch21.addConstraint(Sketcher.Constraint("DistanceY", -1, 1, 0, 3, 95.0))
sketch21.addConstraint(Sketcher.Constraint("DistanceX", -1, 1, 0, 3, 17.5))
pad21 = body27.newObject("PartDesign::Pad", "Pad020")
pad21.Profile = sketch21
pad21.Length = 60
body28 = doc.addObject("PartDesign::Body", "Body027")

sketch22 = body28.newObject("Sketcher::SketchObject", "Sketch021")
sketch22.AttachmentSupport = (doc.getObject("XY_Plane027"), [""])
sketch22.MapMode = "FlatFace"
sketch22.addGeometry(Part.LineSegment(App.Vector(3, 97, 0), App.Vector(3, 93, 0)), False)
sketch22.addGeometry(Part.LineSegment(App.Vector(3, 93, 0), App.Vector(33, 93, 0)), False)
sketch22.addGeometry(Part.LineSegment(App.Vector(33, 93, 0), App.Vector(33, 97, 0)), False)
sketch22.addGeometry(Part.LineSegment(App.Vector(33, 97, 0), App.Vector(3, 97, 0)), False)
sketch22.addConstraint(Sketcher.Constraint("Coincident", 0, 2, 1, 1))
sketch22.addConstraint(Sketcher.Constraint("Coincident", 1, 2, 2, 1))
sketch22.addConstraint(Sketcher.Constraint("Coincident", 2, 2, 3, 1))
sketch22.addConstraint(Sketcher.Constraint("Coincident", 3, 2, 0, 1))
sketch22.addConstraint(Sketcher.Constraint("Vertical", 0))
sketch22.addConstraint(Sketcher.Constraint("Horizontal", 1))
sketch22.addConstraint(Sketcher.Constraint("Vertical", 2))
sketch22.addConstraint(Sketcher.Constraint("Horizontal", 3))
sketch22.addConstraint(Sketcher.Constraint("DistanceX", 1, 1, 1, 2, 30.0))
sketch22.addConstraint(Sketcher.Constraint("DistanceY", 0, 2, 0, 1, 4.0))
sketch22.addConstraint(Sketcher.Constraint("DistanceX", -1, 1, 0, 2, 3.0))
sketch22.addConstraint(Sketcher.Constraint("DistanceY", -1, 1, 0, 2, 93.0))
pad22 = body28.newObject("PartDesign::Pad", "Pad021")
pad22.Profile = sketch22
pad22.Length = 3
body29 = doc.addObject("PartDesign::Body", "Body028")

sketch23 = body29.newObject("Sketcher::SketchObject", "Sketch022")
sketch23.AttachmentSupport = (doc.getObject("XY_Plane028"), [""])
sketch23.MapMode = "FlatFace"
sketch23.addGeometry(Part.LineSegment(App.Vector(32, 97, 0), App.Vector(32, 93, 0)), False)
sketch23.addGeometry(Part.LineSegment(App.Vector(32, 93, 0), App.Vector(35, 93, 0)), False)
sketch23.addGeometry(Part.LineSegment(App.Vector(35, 93, 0), App.Vector(35, 97, 0)), False)
sketch23.addGeometry(Part.LineSegment(App.Vector(35, 97, 0), App.Vector(32, 97, 0)), False)
sketch23.addConstraint(Sketcher.Constraint("Coincident", 0, 2, 1, 1))
sketch23.addConstraint(Sketcher.Constraint("Coincident", 1, 2, 2, 1))
sketch23.addConstraint(Sketcher.Constraint("Coincident", 2, 2, 3, 1))
sketch23.addConstraint(Sketcher.Constraint("Coincident", 3, 2, 0, 1))
sketch23.addConstraint(Sketcher.Constraint("Vertical", 0))
sketch23.addConstraint(Sketcher.Constraint("Horizontal", 1))
sketch23.addConstraint(Sketcher.Constraint("Vertical", 2))
sketch23.addConstraint(Sketcher.Constraint("Horizontal", 3))
sketch23.addConstraint(Sketcher.Constraint("DistanceX", 1, 1, 1, 2, 3.0))
sketch23.addConstraint(Sketcher.Constraint("DistanceY", 0, 2, 0, 1, 4.0))
sketch23.addConstraint(Sketcher.Constraint("DistanceX", -1, 1, 0, 2, 32.0))
sketch23.addConstraint(Sketcher.Constraint("DistanceY", -1, 1, 0, 2, 93.0))
pad23 = body29.newObject("PartDesign::Pad", "Pad022")
pad23.Profile = sketch23
pad23.Length = 50
body30 = doc.addObject("PartDesign::Body", "Body029")

sketch24 = body30.newObject("Sketcher::SketchObject", "Sketch023")
sketch24.AttachmentSupport = (doc.getObject("XZ_Plane029"), [""])
sketch24.MapMode = "FlatFace"
sketch24.addGeometry(Part.Circle(App.Vector(17.5, 16, 0), App.Vector(0, 0, 1), 10), False)
sketch24.addConstraint(Sketcher.Constraint("Diameter", 0, 20.0))
sketch24.addConstraint(Sketcher.Constraint("DistanceY", -1, 1, 0, 3, 16.0))
sketch24.addConstraint(Sketcher.Constraint("DistanceX", -1, 1, 0, 3, 17.5))
pad24 = body30.newObject("PartDesign::Pad", "Pad023")
pad24.Profile = sketch24
pad24.Length = 90
pad24.Reversed = True
body31 = doc.addObject("PartDesign::Body", "Body030")

sketch25 = body31.newObject("Sketcher::SketchObject", "Sketch024")
sketch25.AttachmentSupport = (doc.getObject("XY_Plane030"), [""])
sketch25.MapMode = "FlatFace"
sketch25.addGeometry(Part.LineSegment(App.Vector(0, 200, 0), App.Vector(0, 0, 0)), False)
sketch25.addGeometry(Part.LineSegment(App.Vector(0, 0, 0), App.Vector(35, 0, 0)), False)
sketch25.addGeometry(Part.LineSegment(App.Vector(35, 0, 0), App.Vector(35, 200, 0)), False)
sketch25.addGeometry(Part.LineSegment(App.Vector(35, 200, 0), App.Vector(0, 200, 0)), False)
sketch25.addConstraint(Sketcher.Constraint("Coincident", 0, 2, 1, 1))
sketch25.addConstraint(Sketcher.Constraint("Coincident", 1, 2, 2, 1))
sketch25.addConstraint(Sketcher.Constraint("Coincident", 2, 2, 3, 1))
sketch25.addConstraint(Sketcher.Constraint("Coincident", 3, 2, 0, 1))
sketch25.addConstraint(Sketcher.Constraint("Vertical", 0))
sketch25.addConstraint(Sketcher.Constraint("Horizontal", 1))
sketch25.addConstraint(Sketcher.Constraint("Vertical", 2))
sketch25.addConstraint(Sketcher.Constraint("Horizontal", 3))
sketch25.addConstraint(Sketcher.Constraint("Coincident", 0, 2, -1, 1))
sketch25.addConstraint(Sketcher.Constraint("DistanceX", 1, 1, 1, 2, 35.0))
sketch25.addConstraint(Sketcher.Constraint("DistanceY", 0, 2, 0, 1, 200.0))
pad25 = body31.newObject("PartDesign::Pad", "Pad024")
pad25.Profile = sketch25
pad25.Length = 10
doc.recompute()

boolean9 = body31.newObject("PartDesign::Boolean", "Boolean008")
boolean9.Type = "Cut"
boolean9.addObjects([body30])
doc.recompute()

chamfer = body31.newObject("PartDesign::Chamfer", "Chamfer")
chamfer.Base = (boolean9, edges_at(boolean9, [
    (30.25, 0, 10),
    (17.5, 0, 6),
    (4.75, 0, 10),
    (25.5, 45, 10),
    (9.5, 45, 10),
]))
chamfer.Size = 1
doc.recompute()

body32 = doc.addObject("PartDesign::Body", "Body031")
body32.BaseFeature = body7
boolean10 = body31.newObject("PartDesign::Boolean", "Boolean009")
boolean10.Type = "Cut"
boolean10.addObjects([body32])
doc.recompute()

body33 = doc.addObject("PartDesign::Body", "Body032")
body33.BaseFeature = body29
boolean11 = body31.newObject("PartDesign::Boolean", "Boolean010")
boolean11.Type = "Cut"
boolean11.addObjects([body33])
doc.recompute()

boolean12 = body31.newObject("PartDesign::Boolean", "Boolean011")
boolean12.Type = "Cut"
boolean12.addObjects([body6])
doc.recompute()

body34 = doc.addObject("PartDesign::Body", "Body033")
body34.BaseFeature = body28
boolean13 = body31.newObject("PartDesign::Boolean", "Boolean012")
boolean13.Type = "Cut"
boolean13.addObjects([body34])
doc.recompute()

boolean14 = body31.newObject("PartDesign::Boolean", "Boolean013")
boolean14.Type = "Cut"
boolean14.addObjects([body5])
doc.recompute()

body35 = doc.addObject("PartDesign::Body", "Body034")
body35.BaseFeature = body27
boolean15 = body31.newObject("PartDesign::Boolean", "Boolean014")
boolean15.Type = "Cut"
boolean15.addObjects([body35])
doc.recompute()

boolean16 = body31.newObject("PartDesign::Boolean", "Boolean015")
boolean16.Type = "Cut"
boolean16.addObjects([body3])
doc.recompute()

body36 = doc.addObject("PartDesign::Body", "Body035")
body36.BaseFeature = body26
boolean17 = body31.newObject("PartDesign::Boolean", "Boolean016")
boolean17.Type = "Cut"
boolean17.addObjects([body36])
doc.recompute()

boolean18 = body31.newObject("PartDesign::Boolean", "Boolean017")
boolean18.Type = "Cut"
boolean18.addObjects([body])
doc.recompute()

boolean19 = body31.newObject("PartDesign::Boolean", "Boolean018")
boolean19.Type = "Cut"
boolean19.addObjects([body25])
doc.recompute()

boolean20 = body31.newObject("PartDesign::Boolean", "Boolean019")
boolean20.Type = "Cut"
boolean20.addObjects([body24])
doc.recompute()

boolean21 = body31.newObject("PartDesign::Boolean", "Boolean020")
boolean21.Type = "Cut"
boolean21.addObjects([body23])
doc.recompute()

boolean22 = body31.newObject("PartDesign::Boolean", "Boolean021")
boolean22.Type = "Cut"
boolean22.addObjects([body22])
doc.recompute()

boolean23 = body31.newObject("PartDesign::Boolean", "Boolean022")
boolean23.Type = "Cut"
boolean23.addObjects([body21])
doc.recompute()

boolean24 = body31.newObject("PartDesign::Boolean", "Boolean023")
boolean24.Type = "Cut"
boolean24.addObjects([body20])
doc.recompute()

boolean25 = body31.newObject("PartDesign::Boolean", "Boolean024")
boolean25.Type = "Cut"
boolean25.addObjects([body19])
doc.recompute()

boolean26 = body31.newObject("PartDesign::Boolean", "Boolean025")
boolean26.Type = "Cut"
boolean26.addObjects([body18])
doc.recompute()

boolean27 = body31.newObject("PartDesign::Boolean", "Boolean026")
boolean27.Type = "Cut"
boolean27.addObjects([body17])
doc.recompute()

boolean28 = body31.newObject("PartDesign::Boolean", "Boolean027")
boolean28.Type = "Cut"
boolean28.addObjects([body16])
body37 = doc.addObject("PartDesign::Body", "Body036")

sketch26 = body37.newObject("Sketcher::SketchObject", "Sketch025")
sketch26.AttachmentSupport = (doc.getObject("XY_Plane036"), [""])
sketch26.MapMode = "FlatFace"
sketch26.AttachmentOffset = App.Placement(App.Vector(0, 0, -20), App.Rotation())
sketch26.addGeometry(Part.LineSegment(App.Vector(16, 65, 0), App.Vector(16, 61, 0)), False)
sketch26.addGeometry(Part.LineSegment(App.Vector(16, 61, 0), App.Vector(20, 61, 0)), False)
sketch26.addGeometry(Part.LineSegment(App.Vector(20, 61, 0), App.Vector(20, 65, 0)), False)
sketch26.addGeometry(Part.LineSegment(App.Vector(20, 65, 0), App.Vector(16, 65, 0)), False)
sketch26.addConstraint(Sketcher.Constraint("Coincident", 0, 2, 1, 1))
sketch26.addConstraint(Sketcher.Constraint("Coincident", 1, 2, 2, 1))
sketch26.addConstraint(Sketcher.Constraint("Coincident", 2, 2, 3, 1))
sketch26.addConstraint(Sketcher.Constraint("Coincident", 3, 2, 0, 1))
sketch26.addConstraint(Sketcher.Constraint("Vertical", 0))
sketch26.addConstraint(Sketcher.Constraint("Horizontal", 1))
sketch26.addConstraint(Sketcher.Constraint("Vertical", 2))
sketch26.addConstraint(Sketcher.Constraint("Horizontal", 3))
sketch26.addConstraint(Sketcher.Constraint("Equal", 3, 0))
sketch26.addConstraint(Sketcher.Constraint("DistanceX", 1, 1, 1, 2, 4.0))
sketch26.addConstraint(Sketcher.Constraint("DistanceX", -1, 1, 0, 2, 16.0))
sketch26.addConstraint(Sketcher.Constraint("DistanceY", -1, 1, 0, 2, 61.0))
pad26 = body37.newObject("PartDesign::Pad", "Pad025")
pad26.Profile = sketch26
pad26.Length = 20
body38 = doc.addObject("PartDesign::Body", "Body037")

sketch27 = body38.newObject("Sketcher::SketchObject", "Sketch026")
sketch27.AttachmentSupport = (doc.getObject("XY_Plane037"), [""])
sketch27.MapMode = "FlatFace"
sketch27.AttachmentOffset = App.Placement(App.Vector(0, 0, -7), App.Rotation())
sketch27.addGeometry(Part.LineSegment(App.Vector(8, 59, 0), App.Vector(8, 56, 0)), False)
sketch27.addGeometry(Part.LineSegment(App.Vector(8, 56, 0), App.Vector(28, 56, 0)), False)
sketch27.addGeometry(Part.LineSegment(App.Vector(28, 56, 0), App.Vector(28, 59, 0)), False)
sketch27.addGeometry(Part.LineSegment(App.Vector(28, 59, 0), App.Vector(8, 59, 0)), False)
sketch27.addConstraint(Sketcher.Constraint("Coincident", 0, 2, 1, 1))
sketch27.addConstraint(Sketcher.Constraint("Coincident", 1, 2, 2, 1))
sketch27.addConstraint(Sketcher.Constraint("Coincident", 2, 2, 3, 1))
sketch27.addConstraint(Sketcher.Constraint("Coincident", 3, 2, 0, 1))
sketch27.addConstraint(Sketcher.Constraint("Vertical", 0))
sketch27.addConstraint(Sketcher.Constraint("Horizontal", 1))
sketch27.addConstraint(Sketcher.Constraint("Vertical", 2))
sketch27.addConstraint(Sketcher.Constraint("Horizontal", 3))
sketch27.addConstraint(Sketcher.Constraint("DistanceX", 1, 1, 1, 2, 20.0))
sketch27.addConstraint(Sketcher.Constraint("DistanceY", 0, 2, 0, 1, 3.0))
sketch27.addConstraint(Sketcher.Constraint("DistanceX", -1, 1, 0, 2, 8.0))
sketch27.addConstraint(Sketcher.Constraint("DistanceY", -1, 1, 0, 2, 56.0))
pad27 = body38.newObject("PartDesign::Pad", "Pad026")
pad27.Profile = sketch27
pad27.Length = 4
body39 = doc.addObject("PartDesign::Body", "Body038")

sketch28 = body39.newObject("Sketcher::SketchObject", "Sketch027")
sketch28.AttachmentSupport = (doc.getObject("XY_Plane038"), [""])
sketch28.MapMode = "FlatFace"
sketch28.AttachmentOffset = App.Placement(App.Vector(0, 0, -20), App.Rotation())
sketch28.addGeometry(Part.LineSegment(App.Vector(10.5, 65, 0), App.Vector(10.5, 50, 0)), False)
sketch28.addGeometry(Part.LineSegment(App.Vector(10.5, 50, 0), App.Vector(25.5, 50, 0)), False)
sketch28.addGeometry(Part.LineSegment(App.Vector(25.5, 50, 0), App.Vector(25.5, 65, 0)), False)
sketch28.addGeometry(Part.LineSegment(App.Vector(25.5, 65, 0), App.Vector(10.5, 65, 0)), False)
sketch28.addConstraint(Sketcher.Constraint("Coincident", 0, 2, 1, 1))
sketch28.addConstraint(Sketcher.Constraint("Coincident", 1, 2, 2, 1))
sketch28.addConstraint(Sketcher.Constraint("Coincident", 2, 2, 3, 1))
sketch28.addConstraint(Sketcher.Constraint("Coincident", 3, 2, 0, 1))
sketch28.addConstraint(Sketcher.Constraint("Vertical", 0))
sketch28.addConstraint(Sketcher.Constraint("Horizontal", 1))
sketch28.addConstraint(Sketcher.Constraint("Vertical", 2))
sketch28.addConstraint(Sketcher.Constraint("Horizontal", 3))
sketch28.addConstraint(Sketcher.Constraint("Equal", 3, 0))
sketch28.addConstraint(Sketcher.Constraint("DistanceX", 1, 1, 1, 2, 15.0))
sketch28.addConstraint(Sketcher.Constraint("DistanceY", -1, 1, 0, 2, 50.0))
sketch28.addConstraint(Sketcher.Constraint("DistanceX", -1, 1, 0, 2, 10.5))
pad28 = body39.newObject("PartDesign::Pad", "Pad027")
pad28.Profile = sketch28
pad28.Length = 20
doc.recompute()

boolean29 = body39.newObject("PartDesign::Boolean", "Boolean028")
boolean29.Type = "Cut"
boolean29.addObjects([body38])
doc.recompute()

boolean30 = body39.newObject("PartDesign::Boolean", "Boolean029")
boolean30.Type = "Cut"
boolean30.addObjects([body37])
body40 = doc.addObject("PartDesign::Body", "Body039")
doc.recompute()

body39.Placement = App.Placement(App.Vector(0, 7, 0), App.Rotation(App.Vector(0, 0, 1), 0))
boolean31 = body40.newObject("PartDesign::Boolean", "Boolean030")
boolean31.Type = "Fuse"
boolean31.addObjects([body39])
body41 = doc.addObject("PartDesign::Body", "Body040")

sketch29 = body41.newObject("Sketcher::SketchObject", "Sketch028")
sketch29.AttachmentSupport = (doc.getObject("XY_Plane040"), [""])
sketch29.MapMode = "FlatFace"
sketch29.AttachmentOffset = App.Placement(App.Vector(0, 0, 47), App.Rotation())
sketch29.addGeometry(Part.Circle(App.Vector(17.5, 95, 0), App.Vector(0, 0, 1), 3), False)
sketch29.addConstraint(Sketcher.Constraint("Diameter", 0, 6.0))
sketch29.addConstraint(Sketcher.Constraint("DistanceY", -1, 1, 0, 3, 95.0))
sketch29.addConstraint(Sketcher.Constraint("DistanceX", -1, 1, 0, 3, 17.5))
pad29 = body41.newObject("PartDesign::Pad", "Pad028")
pad29.Profile = sketch29
pad29.Length = 3
body42 = doc.addObject("PartDesign::Body", "Body041")

sketch30 = body42.newObject("Sketcher::SketchObject", "Sketch029")
sketch30.AttachmentSupport = (doc.getObject("XY_Plane041"), [""])
sketch30.MapMode = "FlatFace"
sketch30.AttachmentOffset = App.Placement(App.Vector(0, 0, 47), App.Rotation())
sketch30.addGeometry(Part.LineSegment(App.Vector(3, 97, 0), App.Vector(3, 93, 0)), False)
sketch30.addGeometry(Part.LineSegment(App.Vector(3, 93, 0), App.Vector(33, 93, 0)), False)
sketch30.addGeometry(Part.LineSegment(App.Vector(33, 93, 0), App.Vector(33, 97, 0)), False)
sketch30.addGeometry(Part.LineSegment(App.Vector(33, 97, 0), App.Vector(3, 97, 0)), False)
sketch30.addConstraint(Sketcher.Constraint("Coincident", 0, 2, 1, 1))
sketch30.addConstraint(Sketcher.Constraint("Coincident", 1, 2, 2, 1))
sketch30.addConstraint(Sketcher.Constraint("Coincident", 2, 2, 3, 1))
sketch30.addConstraint(Sketcher.Constraint("Coincident", 3, 2, 0, 1))
sketch30.addConstraint(Sketcher.Constraint("Vertical", 0))
sketch30.addConstraint(Sketcher.Constraint("Horizontal", 1))
sketch30.addConstraint(Sketcher.Constraint("Vertical", 2))
sketch30.addConstraint(Sketcher.Constraint("Horizontal", 3))
sketch30.addConstraint(Sketcher.Constraint("DistanceX", 1, 1, 1, 2, 30.0))
sketch30.addConstraint(Sketcher.Constraint("DistanceY", 0, 2, 0, 1, 4.0))
sketch30.addConstraint(Sketcher.Constraint("DistanceX", -1, 1, 0, 2, 3.0))
sketch30.addConstraint(Sketcher.Constraint("DistanceY", -1, 1, 0, 2, 93.0))
pad30 = body42.newObject("PartDesign::Pad", "Pad029")
pad30.Profile = sketch30
pad30.Length = 3
body43 = doc.addObject("PartDesign::Body", "Body042")
body43.AllowCompound = True

sketch31 = body43.newObject("Sketcher::SketchObject", "Sketch030")
sketch31.AttachmentSupport = (doc.getObject("XY_Plane042"), [""])
sketch31.MapMode = "FlatFace"
sketch31.addGeometry(Part.LineSegment(App.Vector(0, 100, 0), App.Vector(0, 90, 0)), False)
sketch31.addGeometry(Part.LineSegment(App.Vector(0, 90, 0), App.Vector(35, 90, 0)), False)
sketch31.addGeometry(Part.LineSegment(App.Vector(35, 90, 0), App.Vector(35, 100, 0)), False)
sketch31.addGeometry(Part.LineSegment(App.Vector(35, 100, 0), App.Vector(0, 100, 0)), False)
sketch31.addConstraint(Sketcher.Constraint("Coincident", 0, 2, 1, 1))
sketch31.addConstraint(Sketcher.Constraint("Coincident", 1, 2, 2, 1))
sketch31.addConstraint(Sketcher.Constraint("Coincident", 2, 2, 3, 1))
sketch31.addConstraint(Sketcher.Constraint("Coincident", 3, 2, 0, 1))
sketch31.addConstraint(Sketcher.Constraint("Vertical", 0))
sketch31.addConstraint(Sketcher.Constraint("Horizontal", 1))
sketch31.addConstraint(Sketcher.Constraint("Vertical", 2))
sketch31.addConstraint(Sketcher.Constraint("Horizontal", 3))
sketch31.addConstraint(Sketcher.Constraint("PointOnObject", 0, 2, -2))
sketch31.addConstraint(Sketcher.Constraint("DistanceX", 1, 1, 1, 2, 35.0))
sketch31.addConstraint(Sketcher.Constraint("DistanceY", 0, 2, 0, 1, 10.0))
sketch31.addConstraint(Sketcher.Constraint("DistanceY", -1, 1, 0, 2, 90.0))
pad31 = body43.newObject("PartDesign::Pad", "Pad030")
pad31.Profile = sketch31
pad31.Length = 50
doc.recompute()

boolean32 = body43.newObject("PartDesign::Boolean", "Boolean031")
boolean32.Type = "Cut"
boolean32.addObjects([body8])
doc.recompute()

boolean33 = body43.newObject("PartDesign::Boolean", "Boolean032")
boolean33.Type = "Cut"
boolean33.addObjects([body7])
doc.recompute()

boolean34 = body43.newObject("PartDesign::Boolean", "Boolean033")
boolean34.Type = "Cut"
boolean34.addObjects([body29])
doc.recompute()

boolean35 = body43.newObject("PartDesign::Boolean", "Boolean034")
boolean35.Type = "Cut"
boolean35.addObjects([body28])
doc.recompute()

boolean36 = body43.newObject("PartDesign::Boolean", "Boolean035")
boolean36.Type = "Cut"
boolean36.addObjects([body42])
doc.recompute()

boolean37 = body43.newObject("PartDesign::Boolean", "Boolean036")
boolean37.Type = "Cut"
boolean37.addObjects([body27])
doc.recompute()

boolean38 = body43.newObject("PartDesign::Boolean", "Boolean037")
boolean38.Type = "Cut"
boolean38.addObjects([body41])
doc.recompute()

boolean39 = body43.newObject("PartDesign::Boolean", "Boolean038")
boolean39.Type = "Cut"
boolean39.addObjects([body26])
doc.recompute()

boolean40 = body43.newObject("PartDesign::Boolean", "Boolean039")
boolean40.Type = "Fuse"
boolean40.addObjects([body9])
doc.recompute()

boolean41 = body43.newObject("PartDesign::Boolean", "Boolean040")
boolean41.Type = "Fuse"
boolean41.addObjects([body31])
doc.recompute()

boolean42 = body43.newObject("PartDesign::Boolean", "Boolean041")
boolean42.Type = "Fuse"
boolean42.addObjects([body40])

doc.recompute()
